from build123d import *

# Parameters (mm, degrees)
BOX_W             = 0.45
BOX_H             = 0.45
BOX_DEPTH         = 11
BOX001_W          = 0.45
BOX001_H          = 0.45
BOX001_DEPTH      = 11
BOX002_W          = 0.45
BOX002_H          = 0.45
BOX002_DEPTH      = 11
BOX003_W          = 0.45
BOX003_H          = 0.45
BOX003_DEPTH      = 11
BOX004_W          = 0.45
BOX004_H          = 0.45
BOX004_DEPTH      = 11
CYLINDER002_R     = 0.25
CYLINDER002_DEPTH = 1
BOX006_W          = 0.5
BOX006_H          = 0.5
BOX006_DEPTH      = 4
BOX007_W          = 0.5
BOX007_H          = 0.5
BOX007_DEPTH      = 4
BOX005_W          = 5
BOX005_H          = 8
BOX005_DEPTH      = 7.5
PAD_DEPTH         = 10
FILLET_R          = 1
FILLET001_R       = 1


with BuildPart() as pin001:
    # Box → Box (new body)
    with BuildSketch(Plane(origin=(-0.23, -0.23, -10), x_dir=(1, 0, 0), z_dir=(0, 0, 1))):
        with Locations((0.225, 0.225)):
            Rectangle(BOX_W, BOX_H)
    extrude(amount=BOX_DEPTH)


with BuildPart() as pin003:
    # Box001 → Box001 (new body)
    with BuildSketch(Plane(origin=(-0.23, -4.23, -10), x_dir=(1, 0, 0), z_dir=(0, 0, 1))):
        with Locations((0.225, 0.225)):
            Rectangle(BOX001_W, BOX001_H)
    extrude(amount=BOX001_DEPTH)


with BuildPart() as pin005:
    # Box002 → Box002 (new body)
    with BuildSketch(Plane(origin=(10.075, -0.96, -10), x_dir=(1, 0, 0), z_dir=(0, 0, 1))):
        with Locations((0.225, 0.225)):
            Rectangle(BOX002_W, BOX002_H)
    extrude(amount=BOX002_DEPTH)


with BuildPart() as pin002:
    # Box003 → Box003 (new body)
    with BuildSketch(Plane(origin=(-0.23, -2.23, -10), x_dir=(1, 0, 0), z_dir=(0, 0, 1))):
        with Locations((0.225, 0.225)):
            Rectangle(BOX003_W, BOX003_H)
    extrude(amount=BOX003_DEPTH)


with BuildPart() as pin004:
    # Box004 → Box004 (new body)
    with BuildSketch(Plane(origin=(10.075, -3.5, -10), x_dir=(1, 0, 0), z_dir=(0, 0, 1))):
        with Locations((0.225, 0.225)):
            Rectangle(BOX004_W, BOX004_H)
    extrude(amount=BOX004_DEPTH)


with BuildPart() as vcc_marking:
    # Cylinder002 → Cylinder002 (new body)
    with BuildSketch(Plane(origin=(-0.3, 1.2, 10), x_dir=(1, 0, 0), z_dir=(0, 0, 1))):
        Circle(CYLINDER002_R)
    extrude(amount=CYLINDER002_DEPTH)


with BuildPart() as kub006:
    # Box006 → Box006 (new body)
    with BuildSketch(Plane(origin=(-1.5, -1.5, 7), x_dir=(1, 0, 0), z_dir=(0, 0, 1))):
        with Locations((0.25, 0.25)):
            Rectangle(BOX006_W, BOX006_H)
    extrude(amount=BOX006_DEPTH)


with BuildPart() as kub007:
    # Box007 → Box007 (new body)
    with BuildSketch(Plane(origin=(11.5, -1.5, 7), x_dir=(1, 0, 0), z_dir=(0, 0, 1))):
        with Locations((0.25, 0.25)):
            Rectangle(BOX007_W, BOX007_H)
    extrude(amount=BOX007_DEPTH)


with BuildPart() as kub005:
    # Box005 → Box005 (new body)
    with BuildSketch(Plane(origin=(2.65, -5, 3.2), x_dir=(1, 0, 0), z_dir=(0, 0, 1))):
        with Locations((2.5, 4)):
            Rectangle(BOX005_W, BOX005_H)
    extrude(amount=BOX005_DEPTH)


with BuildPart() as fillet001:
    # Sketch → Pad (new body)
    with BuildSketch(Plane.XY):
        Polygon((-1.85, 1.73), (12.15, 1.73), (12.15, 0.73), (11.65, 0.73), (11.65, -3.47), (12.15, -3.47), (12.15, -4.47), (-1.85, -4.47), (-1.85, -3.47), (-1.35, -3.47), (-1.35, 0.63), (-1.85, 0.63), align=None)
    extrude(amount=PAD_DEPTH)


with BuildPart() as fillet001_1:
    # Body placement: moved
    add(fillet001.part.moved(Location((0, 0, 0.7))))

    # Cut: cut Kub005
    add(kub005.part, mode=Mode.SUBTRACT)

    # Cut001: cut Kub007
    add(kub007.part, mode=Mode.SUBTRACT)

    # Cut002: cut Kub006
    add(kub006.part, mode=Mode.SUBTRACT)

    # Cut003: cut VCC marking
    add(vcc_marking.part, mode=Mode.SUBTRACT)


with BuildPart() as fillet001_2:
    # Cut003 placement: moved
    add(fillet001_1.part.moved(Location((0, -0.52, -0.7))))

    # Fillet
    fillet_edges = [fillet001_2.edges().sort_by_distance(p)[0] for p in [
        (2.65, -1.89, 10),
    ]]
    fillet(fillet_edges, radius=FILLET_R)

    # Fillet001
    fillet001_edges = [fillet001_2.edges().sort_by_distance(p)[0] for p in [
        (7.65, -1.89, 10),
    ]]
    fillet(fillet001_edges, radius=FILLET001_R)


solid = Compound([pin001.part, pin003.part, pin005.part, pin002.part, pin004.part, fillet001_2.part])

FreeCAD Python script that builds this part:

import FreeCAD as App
import Part
import Sketcher

V = App.Vector
Q = App.Units.Quantity


def edges_at(feature, points):
    """Names of the edges that pass closest to the given points."""
    edges = feature.Shape.Edges
    near = lambda p: min(range(len(edges)), key=lambda i: edges[i].distToShape(Part.Vertex(*p))[0])
    return sorted({f"Edge{near(p) + 1}" for p in points})

doc = App.newDocument("Part")
body = doc.addObject("PartDesign::Body", "Body")

# Sketch on XY plane
sketch1 = body.newObject("Sketcher::SketchObject", "Sketch")
sketch1.AttachmentSupport = (doc.getObject("XY_Plane"), [""])
sketch1.MapMode = "FlatFace"
sketch1.AttachmentOffset = App.Placement(V(0, 0, -10), App.Rotation())
sketch1.addGeometry([
    Part.LineSegment(V(-0.23, 0.22, 0), V(-0.23, -0.23, 0)),
    Part.LineSegment(V(-0.23, -0.23, 0), V(0.22, -0.23, 0)),
    Part.LineSegment(V(0.22, -0.23, 0), V(0.22, 0.22, 0)),
    Part.LineSegment(V(0.22, 0.22, 0), V(-0.23, 0.22, 0)),
], False)
sketch1.addConstraint([
    Sketcher.Constraint("Coincident", 0, 2, 1, 1),
    Sketcher.Constraint("Coincident", 1, 2, 2, 1),
    Sketcher.Constraint("Coincident", 2, 2, 3, 1),
    Sketcher.Constraint("Coincident", 3, 2, 0, 1),
    Sketcher.Constraint("Vertical", 0),
    Sketcher.Constraint("Horizontal", 1),
    Sketcher.Constraint("Vertical", 2),
    Sketcher.Constraint("Horizontal", 3),
    Sketcher.Constraint("Equal", 3, 0),
    Sketcher.Constraint("DistanceX", 1, 1, 1, 2, Q("0.45 mm")),
    Sketcher.Constraint("DistanceX", 0, 2, -1, 1, Q("0.23 mm")),
    Sketcher.Constraint("DistanceY", 0, 2, -1, 1, Q("0.23 mm")),
])
pad1 = body.newObject("PartDesign::Pad", "Pad")
pad1.Profile = sketch1
pad1.Length = 11
body2 = doc.addObject("PartDesign::Body", "Body001")

# Sketch on XY plane
sketch2 = body2.newObject("Sketcher::SketchObject", "Sketch001")
sketch2.AttachmentSupport = (doc.getObject("XY_Plane001"), [""])
sketch2.MapMode = "FlatFace"
sketch2.AttachmentOffset = App.Placement(V(0, 0, -10), App.Rotation())
sketch2.addGeometry([
    Part.LineSegment(V(-0.23, -3.78, 0), V(-0.23, -4.23, 0)),
    Part.LineSegment(V(-0.23, -4.23, 0), V(0.22, -4.23, 0)),
    Part.LineSegment(V(0.22, -4.23, 0), V(0.22, -3.78, 0)),
    Part.LineSegment(V(0.22, -3.78, 0), V(-0.23, -3.78, 0)),
], False)
sketch2.addConstraint([
    Sketcher.Constraint("Coincident", 0, 2, 1, 1),
    Sketcher.Constraint("Coincident", 1, 2, 2, 1),
    Sketcher.Constraint("Coincident", 2, 2, 3, 1),
    Sketcher.Constraint("Coincident", 3, 2, 0, 1),
    Sketcher.Constraint("Vertical", 0),
    Sketcher.Constraint("Horizontal", 1),
    Sketcher.Constraint("Vertical", 2),
    Sketcher.Constraint("Horizontal", 3),
    Sketcher.Constraint("Equal", 3, 0),
    Sketcher.Constraint("DistanceX", 1, 1, 1, 2, Q("0.45 mm")),
    Sketcher.Constraint("DistanceX", 0, 2, -1, 1, Q("0.23 mm")),
    Sketcher.Constraint("DistanceY", 0, 2, -1, 1, Q("4.23 mm")),
])
pad2 = body2.newObject("PartDesign::Pad", "Pad001")
pad2.Profile = sketch2
pad2.Length = 11
body3 = doc.addObject("PartDesign::Body", "Body002")

# Sketch on XY plane
sketch3 = body3.newObject("Sketcher::SketchObject", "Sketch002")
sketch3.AttachmentSupport = (doc.getObject("XY_Plane002"), [""])
sketch3.MapMode = "FlatFace"
sketch3.AttachmentOffset = App.Placement(V(0, 0, -10), App.Rotation())
sketch3.addGeometry([
    Part.LineSegment(V(10.075, -0.51, 0), V(10.075, -0.96, 0)),
    Part.LineSegment(V(10.075, -0.96, 0), V(10.525, -0.96, 0)),
    Part.LineSegment(V(10.525, -0.96, 0), V(10.525, -0.51, 0)),
    Part.LineSegment(V(10.525, -0.51, 0), V(10.075, -0.51, 0)),
], False)
sketch3.addConstraint([
    Sketcher.Constraint("Coincident", 0, 2, 1, 1),
    Sketcher.Constraint("Coincident", 1, 2, 2, 1),
    Sketcher.Constraint("Coincident", 2, 2, 3, 1),
    Sketcher.Constraint("Coincident", 3, 2, 0, 1),
    Sketcher.Constraint("Vertical", 0),
    Sketcher.Constraint("Horizontal", 1),
    Sketcher.Constraint("Vertical", 2),
    Sketcher.Constraint("Horizontal", 3),
    Sketcher.Constraint("Equal", 3, 0),
    Sketcher.Constraint("DistanceX", 1, 1, 1, 2, Q("0.45 mm")),
    Sketcher.Constraint("DistanceY", 0, 2, -1, 1, Q("0.96 mm")),
    Sketcher.Constraint("DistanceX", -1, 1, 0, 2, Q("10.075 mm")),
])
pad3 = body3.newObject("PartDesign::Pad", "Pad002")
pad3.Profile = sketch3
pad3.Length = 11
body4 = doc.addObject("PartDesign::Body", "Body003")

# Sketch on XY plane
sketch4 = body4.newObject("Sketcher::SketchObject", "Sketch003")
sketch4.AttachmentSupport = (doc.getObject("XY_Plane003"), [""])
sketch4.MapMode = "FlatFace"
sketch4.AttachmentOffset = App.Placement(V(0, 0, -10), App.Rotation())
sketch4.addGeometry([
    Part.LineSegment(V(-0.23, -1.78, 0), V(-0.23, -2.23, 0)),
    Part.LineSegment(V(-0.23, -2.23, 0), V(0.22, -2.23, 0)),
    Part.LineSegment(V(0.22, -2.23, 0), V(0.22, -1.78, 0)),
    Part.LineSegment(V(0.22, -1.78, 0), V(-0.23, -1.78, 0)),
], False)
sketch4.addConstraint([
    Sketcher.Constraint("Coincident", 0, 2, 1, 1),
    Sketcher.Constraint("Coincident", 1, 2, 2, 1),
    Sketcher.Constraint("Coincident", 2, 2, 3, 1),
    Sketcher.Constraint("Coincident", 3, 2, 0, 1),
    Sketcher.Constraint("Vertical", 0),
    Sketcher.Constraint("Horizontal", 1),
    Sketcher.Constraint("Vertical", 2),
    Sketcher.Constraint("Horizontal", 3),
    Sketcher.Constraint("Equal", 3, 0),
    Sketcher.Constraint("DistanceX", 1, 1, 1, 2, Q("0.45 mm")),
    Sketcher.Constraint("DistanceX", 0, 2, -1, 1, Q("0.23 mm")),
    Sketcher.Constraint("DistanceY", 0, 2, -1, 1, Q("2.23 mm")),
])
pad4 = body4.newObject("PartDesign::Pad", "Pad003")
pad4.Profile = sketch4
pad4.Length = 11
body5 = doc.addObject("PartDesign::Body", "Body004")

# Sketch on XY plane
sketch5 = body5.newObject("Sketcher::SketchObject", "Sketch004")
sketch5.AttachmentSupport = (doc.getObject("XY_Plane004"), [""])
sketch5.MapMode = "FlatFace"
sketch5.AttachmentOffset = App.Placement(V(0, 0, -10), App.Rotation())
sketch5.addGeometry([
    Part.LineSegment(V(10.075, -3.05, 0), V(10.075, -3.5, 0)),
    Part.LineSegment(V(10.075, -3.5, 0), V(10.525, -3.5, 0)),
    Part.LineSegment(V(10.525, -3.5, 0), V(10.525, -3.05, 0)),
    Part.LineSegment(V(10.525, -3.05, 0), V(10.075, -3.05, 0)),
], False)
sketch5.addConstraint([
    Sketcher.Constraint("Coincident", 0, 2, 1, 1),
    Sketcher.Constraint("Coincident", 1, 2, 2, 1),
    Sketcher.Constraint("Coincident", 2, 2, 3, 1),
    Sketcher.Constraint("Coincident", 3, 2, 0, 1),
    Sketcher.Constraint("Vertical", 0),
    Sketcher.Constraint("Horizontal", 1),
    Sketcher.Constraint("Vertical", 2),
    Sketcher.Constraint("Horizontal", 3),
    Sketcher.Constraint("Equal", 3, 0),
    Sketcher.Constraint("DistanceX", 1, 1, 1, 2, Q("0.45 mm")),
    Sketcher.Constraint("DistanceY", 0, 2, -1, 1, Q("3.5 mm")),
    Sketcher.Constraint("DistanceX", -1, 1, 0, 2, Q("10.075 mm")),
])
pad5 = body5.newObject("PartDesign::Pad", "Pad004")
pad5.Profile = sketch5
pad5.Length = 11
body6 = doc.addObject("PartDesign::Body", "Body005")

# Sketch on XY plane
sketch6 = body6.newObject("Sketcher::SketchObject", "Sketch005")
sketch6.AttachmentSupport = (doc.getObject("XY_Plane005"), [""])
sketch6.MapMode = "FlatFace"
sketch6.AttachmentOffset = App.Placement(V(0, 0, 10), App.Rotation())
sketch6.addGeometry(Part.Circle(V(-0.3, 1.2, 0), V(0, 0, 1), 0.25), False)
sketch6.addConstraint([
    Sketcher.Constraint("Diameter", 0, Q("0.5 mm")),
    Sketcher.Constraint("DistanceX", 0, 3, -1, 1, Q("0.3 mm")),
    Sketcher.Constraint("DistanceY", -1, 1, 0, 3, Q("1.2 mm")),
])
pad6 = body6.newObject("PartDesign::Pad", "Pad005")
pad6.Profile = sketch6
pad6.Length = 1
body7 = doc.addObject("PartDesign::Body", "Body006")

# Sketch on XY plane
sketch7 = body7.newObject("Sketcher::SketchObject", "Sketch006")
sketch7.AttachmentSupport = (doc.getObject("XY_Plane006"), [""])
sketch7.MapMode = "FlatFace"
sketch7.AttachmentOffset = App.Placement(V(0, 0, 7), App.Rotation())
sketch7.addGeometry([
    Part.LineSegment(V(-1.5, -1, 0), V(-1.5, -1.5, 0)),
    Part.LineSegment(V(-1.5, -1.5, 0), V(-1, -1.5, 0)),
    Part.LineSegment(V(-1, -1.5, 0), V(-1, -1, 0)),
    Part.LineSegment(V(-1, -1, 0), V(-1.5, -1, 0)),
], False)
sketch7.addConstraint([
    Sketcher.Constraint("Coincident", 0, 2, 1, 1),
    Sketcher.Constraint("Coincident", 1, 2, 2, 1),
    Sketcher.Constraint("Coincident", 2, 2, 3, 1),
    Sketcher.Constraint("Coincident", 3, 2, 0, 1),
    Sketcher.Constraint("Vertical", 0),
    Sketcher.Constraint("Horizontal", 1),
    Sketcher.Constraint("Vertical", 2),
    Sketcher.Constraint("Horizontal", 3),
    Sketcher.Constraint("Equal", 3, 0),
    Sketcher.Constraint("DistanceX", 1, 1, 1, 2, Q("0.5 mm")),
    Sketcher.Constraint("DistanceX", 1, 2, -1, 1, Q("1 mm")),
    Sketcher.Constraint("DistanceY", 2, 2, -1, 1, Q("1 mm")),
])
pad7 = body7.newObject("PartDesign::Pad", "Pad006")
pad7.Profile = sketch7
pad7.Length = 4
body8 = doc.addObject("PartDesign::Body", "Body007")

# Sketch on XY plane
sketch8 = body8.newObject("Sketcher::SketchObject", "Sketch007")
sketch8.AttachmentSupport = (doc.getObject("XY_Plane007"), [""])
sketch8.MapMode = "FlatFace"
sketch8.AttachmentOffset = App.Placement(V(0, 0, 7), App.Rotation())
sketch8.addGeometry([
    Part.LineSegment(V(11.5, -1, 0), V(11.5, -1.5, 0)),
    Part.LineSegment(V(11.5, -1.5, 0), V(12, -1.5, 0)),
    Part.LineSegment(V(12, -1.5, 0), V(12, -1, 0)),
    Part.LineSegment(V(12, -1, 0), V(11.5, -1, 0)),
], False)
sketch8.addConstraint([
    Sketcher.Constraint("Coincident", 0, 2, 1, 1),
    Sketcher.Constraint("Coincident", 1, 2, 2, 1),
    Sketcher.Constraint("Coincident", 2, 2, 3, 1),
    Sketcher.Constraint("Coincident", 3, 2, 0, 1),
    Sketcher.Constraint("Vertical", 0),
    Sketcher.Constraint("Horizontal", 1),
    Sketcher.Constraint("Vertical", 2),
    Sketcher.Constraint("Horizontal", 3),
    Sketcher.Constraint("Equal", 3, 0),
    Sketcher.Constraint("DistanceX", 1, 1, 1, 2, Q("0.5 mm")),
    Sketcher.Constraint("DistanceX", -1, 1, 1, 2, Q("12 mm")),
    Sketcher.Constraint("DistanceY", 2, 2, -1, 1, Q("1 mm")),
])
pad8 = body8.newObject("PartDesign::Pad", "Pad007")
pad8.Profile = sketch8
pad8.Length = 4
body9 = doc.addObject("PartDesign::Body", "Body008")

# Sketch on XY plane
sketch9 = body9.newObject("Sketcher::SketchObject", "Sketch008")
sketch9.AttachmentSupport = (doc.getObject("XY_Plane008"), [""])
sketch9.MapMode = "FlatFace"
sketch9.AttachmentOffset = App.Placement(V(0, 0, 3.2), App.Rotation())
sketch9.addGeometry([
    Part.LineSegment(V(2.65, 3, 0), V(2.65, -5, 0)),
    Part.LineSegment(V(2.65, -5, 0), V(7.65, -5, 0)),
    Part.LineSegment(V(7.65, -5, 0), V(7.65, 3, 0)),
    Part.LineSegment(V(7.65, 3, 0), V(2.65, 3, 0)),
], False)
sketch9.addConstraint([
    Sketcher.Constraint("Coincident", 0, 2, 1, 1),
    Sketcher.Constraint("Coincident", 1, 2, 2, 1),
    Sketcher.Constraint("Coincident", 2, 2, 3, 1),
    Sketcher.Constraint("Coincident", 3, 2, 0, 1),
    Sketcher.Constraint("Vertical", 0),
    Sketcher.Constraint("Horizontal", 1),
    Sketcher.Constraint("Vertical", 2),
    Sketcher.Constraint("Horizontal", 3),
    Sketcher.Constraint("DistanceX", 1, 1, 1, 2, Q("5 mm")),
    Sketcher.Constraint("DistanceY", 0, 2, 0, 1, Q("8 mm")),
    Sketcher.Constraint("DistanceY", 0, 2, -1, 1, Q("5 mm")),
    Sketcher.Constraint("DistanceX", -1, 1, 0, 2, Q("2.65 mm")),
])
pad9 = body9.newObject("PartDesign::Pad", "Pad008")
pad9.Profile = sketch9
pad9.Length = 7.5
body10 = doc.addObject("PartDesign::Body", "Body009")

# Sketch on XY plane
sketch10 = body10.newObject("Sketcher::SketchObject", "Sketch009")
sketch10.AttachmentSupport = (doc.getObject("XY_Plane009"), [""])
sketch10.MapMode = "FlatFace"
sketch10.addGeometry([
    Part.LineSegment(V(12.15, 1.73, 0), V(-1.85, 1.73, 0)),  # 0
    Part.LineSegment(V(-1.85, 1.73, 0), V(-1.85, 0.63, 0)),  # 1
    Part.LineSegment(V(-1.85, 0.63, 0), V(-1.35, 0.63, 0)),  # 2
    Part.LineSegment(V(-1.35, 0.63, 0), V(-1.35, -3.47, 0)),  # 3
    Part.LineSegment(V(-1.35, -3.47, 0), V(-1.85, -3.47, 0)),  # 4
    Part.LineSegment(V(-1.85, -3.47, 0), V(-1.85, -4.47, 0)),  # 5
    Part.LineSegment(V(-1.85, -4.47, 0), V(12.15, -4.47, 0)),  # 6
    Part.LineSegment(V(12.15, -4.47, 0), V(12.15, -3.47, 0)),  # 7
    Part.LineSegment(V(12.15, -3.47, 0), V(11.65, -3.47, 0)),  # 8
    Part.LineSegment(V(11.65, -3.47, 0), V(11.65, 0.73, 0)),  # 9
    Part.LineSegment(V(11.65, 0.73, 0), V(12.15, 0.73, 0)),  # 10
    Part.LineSegment(V(12.15, 0.73, 0), V(12.15, 1.73, 0)),  # 11
], False)
sketch10.addConstraint([
    Sketcher.Constraint("Coincident", 0, 2, 1, 1),
    Sketcher.Constraint("Coincident", 1, 2, 2, 1),
    Sketcher.Constraint("Coincident", 2, 2, 3, 1),
    Sketcher.Constraint("Coincident", 3, 2, 4, 1),
    Sketcher.Constraint("Coincident", 4, 2, 5, 1),
    Sketcher.Constraint("Coincident", 5, 2, 6, 1),
    Sketcher.Constraint("Coincident", 6, 2, 7, 1),
    Sketcher.Constraint("Coincident", 7, 2, 8, 1),
    Sketcher.Constraint("Coincident", 8, 2, 9, 1),
    Sketcher.Constraint("Coincident", 9, 2, 10, 1),
    Sketcher.Constraint("Coincident", 10, 2, 11, 1),
    Sketcher.Constraint("Coincident", 11, 2, 0, 1),
    Sketcher.Constraint("Horizontal", 0),
    Sketcher.Constraint("Vertical", 1),
    Sketcher.Constraint("Horizontal", 2),
    Sketcher.Constraint("Vertical", 3),
    Sketcher.Constraint("Horizontal", 4),
    Sketcher.Constraint("Vertical", 5),
    Sketcher.Constraint("Horizontal", 6),
    Sketcher.Constraint("Vertical", 7),
    Sketcher.Constraint("Horizontal", 8),
    Sketcher.Constraint("Vertical", 9),
    Sketcher.Constraint("Horizontal", 10),
    Sketcher.Constraint("Vertical", 11),
    Sketcher.Constraint("Horizontal", 4, 2, 7, 2),
    Sketcher.Constraint("Vertical", 1, 2, 4, 2),
    Sketcher.Constraint("Vertical", 7, 2, 10, 2),
    Sketcher.Constraint("Equal", 4, 8),
    Sketcher.Constraint("Equal", 7, 11),
    Sketcher.Constraint("DistanceX", 0, 2, 0, 1, Q("14 mm")),
    Sketcher.Constraint("DistanceY", 5, 2, 5, 1, Q("1 mm")),
    Sketcher.Constraint("DistanceX", 2, 1, 2, 2, Q("0.5 mm")),
    Sketcher.Constraint("DistanceY", 1, 2, 1, 1, Q("1.1 mm")),
    Sketcher.Constraint("DistanceY", 3, 2, 3, 1, Q("4.1 mm")),
    Sketcher.Constraint("DistanceX", 0, 2, -1, 1, Q("1.85 mm")),
    Sketcher.Constraint("DistanceY", -1, 1, 0, 2, Q("1.73 mm")),
])
pad10 = body10.newObject("PartDesign::Pad", "Pad009")
pad10.Profile = sketch10
pad10.Length = 10
body11 = doc.addObject("PartDesign::Body", "Body010")
doc.recompute()

body10.Placement = App.Placement(V(0, 0, 0.7), App.Rotation(V(0, 0, 1), 0))
boolean = body11.newObject("PartDesign::Boolean", "Boolean")
boolean.Type = "Fuse"
boolean.addObjects([body10])
doc.recompute()

boolean2 = body11.newObject("PartDesign::Boolean", "Boolean001")
boolean2.Type = "Cut"
boolean2.addObjects([body9])
doc.recompute()

boolean3 = body11.newObject("PartDesign::Boolean", "Boolean002")
boolean3.Type = "Cut"
boolean3.addObjects([body8])
doc.recompute()

boolean4 = body11.newObject("PartDesign::Boolean", "Boolean003")
boolean4.Type = "Cut"
boolean4.addObjects([body7])
doc.recompute()

boolean5 = body11.newObject("PartDesign::Boolean", "Boolean004")
boolean5.Type = "Cut"
boolean5.addObjects([body6])
body12 = doc.addObject("PartDesign::Body", "Body011")
doc.recompute()

body11.Placement = App.Placement(V(0, -0.52, -0.7), App.Rotation(V(0, 0, 1), 0))
boolean6 = body12.newObject("PartDesign::Boolean", "Boolean005")
boolean6.Type = "Fuse"
boolean6.addObjects([body11])
doc.recompute()

fillet = body12.newObject("PartDesign::Fillet", "Fillet")
fillet.Base = (boolean6, edges_at(boolean6, [(2.65, -1.89, 10)]))
fillet.Radius = 1
doc.recompute()

fillet2 = body12.newObject("PartDesign::Fillet", "Fillet001")
fillet2.Base = (fillet, edges_at(fillet, [(7.65, -1.89, 10)]))
fillet2.Radius = 1

doc.recompute()
